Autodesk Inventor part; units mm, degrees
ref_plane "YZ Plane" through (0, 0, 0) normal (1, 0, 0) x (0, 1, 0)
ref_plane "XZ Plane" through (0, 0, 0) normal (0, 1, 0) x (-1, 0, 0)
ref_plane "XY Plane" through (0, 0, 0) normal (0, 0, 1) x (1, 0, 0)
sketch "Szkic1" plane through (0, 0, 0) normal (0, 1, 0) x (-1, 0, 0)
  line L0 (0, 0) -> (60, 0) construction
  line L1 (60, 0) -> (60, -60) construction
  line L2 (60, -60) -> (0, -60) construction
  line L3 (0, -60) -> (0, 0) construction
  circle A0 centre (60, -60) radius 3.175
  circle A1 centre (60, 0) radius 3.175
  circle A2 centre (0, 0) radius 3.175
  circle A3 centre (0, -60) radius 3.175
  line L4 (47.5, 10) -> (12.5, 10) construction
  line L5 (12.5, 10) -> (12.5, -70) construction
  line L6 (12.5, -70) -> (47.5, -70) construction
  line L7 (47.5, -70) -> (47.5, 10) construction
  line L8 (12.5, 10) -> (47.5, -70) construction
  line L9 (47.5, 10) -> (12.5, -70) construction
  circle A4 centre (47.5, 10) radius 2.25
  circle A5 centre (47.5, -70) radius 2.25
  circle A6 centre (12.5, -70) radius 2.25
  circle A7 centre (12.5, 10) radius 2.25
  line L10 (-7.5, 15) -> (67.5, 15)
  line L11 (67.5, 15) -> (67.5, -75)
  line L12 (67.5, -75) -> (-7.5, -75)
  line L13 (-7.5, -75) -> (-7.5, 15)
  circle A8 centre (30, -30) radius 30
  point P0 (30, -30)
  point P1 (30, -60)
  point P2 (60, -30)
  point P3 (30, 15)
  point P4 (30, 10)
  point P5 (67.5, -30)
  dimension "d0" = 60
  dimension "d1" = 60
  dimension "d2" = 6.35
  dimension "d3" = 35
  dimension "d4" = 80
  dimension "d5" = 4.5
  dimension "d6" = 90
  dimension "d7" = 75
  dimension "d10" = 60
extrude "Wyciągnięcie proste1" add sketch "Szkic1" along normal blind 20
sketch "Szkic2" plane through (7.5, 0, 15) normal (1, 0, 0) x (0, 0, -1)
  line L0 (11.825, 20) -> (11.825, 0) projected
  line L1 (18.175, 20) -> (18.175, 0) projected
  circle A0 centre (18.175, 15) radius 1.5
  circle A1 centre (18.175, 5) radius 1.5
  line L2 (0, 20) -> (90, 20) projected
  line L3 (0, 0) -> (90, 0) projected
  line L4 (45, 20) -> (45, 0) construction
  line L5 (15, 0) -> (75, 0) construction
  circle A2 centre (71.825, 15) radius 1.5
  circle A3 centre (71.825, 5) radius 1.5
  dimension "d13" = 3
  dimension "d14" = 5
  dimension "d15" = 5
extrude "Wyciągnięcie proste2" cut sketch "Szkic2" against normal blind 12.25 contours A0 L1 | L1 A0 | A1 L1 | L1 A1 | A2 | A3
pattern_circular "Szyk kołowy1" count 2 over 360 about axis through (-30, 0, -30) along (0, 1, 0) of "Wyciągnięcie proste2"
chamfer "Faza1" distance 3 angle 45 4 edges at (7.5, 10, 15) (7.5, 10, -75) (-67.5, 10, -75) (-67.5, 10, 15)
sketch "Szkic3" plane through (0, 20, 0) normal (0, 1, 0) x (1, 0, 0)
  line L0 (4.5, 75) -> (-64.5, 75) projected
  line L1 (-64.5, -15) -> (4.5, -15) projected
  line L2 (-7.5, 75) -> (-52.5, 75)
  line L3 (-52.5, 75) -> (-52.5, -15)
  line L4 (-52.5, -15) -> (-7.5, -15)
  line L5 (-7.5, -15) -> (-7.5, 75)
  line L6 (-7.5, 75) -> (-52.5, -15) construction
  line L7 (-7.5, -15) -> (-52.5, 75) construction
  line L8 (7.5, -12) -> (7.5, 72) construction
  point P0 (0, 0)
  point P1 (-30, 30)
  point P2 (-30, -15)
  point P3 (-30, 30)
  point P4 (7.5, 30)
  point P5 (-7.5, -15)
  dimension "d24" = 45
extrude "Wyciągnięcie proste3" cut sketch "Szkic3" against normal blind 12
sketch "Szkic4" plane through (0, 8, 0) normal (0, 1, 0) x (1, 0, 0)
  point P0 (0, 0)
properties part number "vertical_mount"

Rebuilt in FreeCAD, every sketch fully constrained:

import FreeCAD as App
import Part
import Sketcher

V = App.Vector


def edges_at(feature, points):
    """Names of the edges that pass closest to the given points."""
    edges = feature.Shape.Edges
    near = lambda p: min(range(len(edges)), key=lambda i: edges[i].distToShape(Part.Vertex(*p))[0])
    return sorted({f"Edge{near(p) + 1}" for p in points})

doc = App.newDocument("Part")
body = doc.addObject("PartDesign::Body", "Body")

# Sketch on XZ plane
sketch1 = body.newObject("Sketcher::SketchObject", "Sketch")
sketch1.AttachmentSupport = (doc.getObject("XZ_Plane"), [""])
sketch1.MapMode = "FlatFace"
sketch1.addGeometry([
    Part.LineSegment(V(-67.5, 15, 0), V(7.5, 15, 0)),  # 0
    Part.LineSegment(V(7.5, 15, 0), V(7.5, -75, 0)),  # 1
    Part.LineSegment(V(7.5, -75, 0), V(-67.5, -75, 0)),  # 2
    Part.LineSegment(V(-67.5, -75, 0), V(-67.5, 15, 0)),  # 3
    Part.Circle(V(0, -60, 0), V(0, 0, 1), 3.175),  # 4
    Part.Circle(V(-12.5, -70, 0), V(0, 0, 1), 2.25),  # 5
    Part.Circle(V(-47.5, -70, 0), V(0, 0, 1), 2.25),  # 6
    Part.Circle(V(-60, -60, 0), V(0, 0, 1), 3.175),  # 7
    Part.Circle(V(0, 0, 0), V(0, 0, 1), 3.175),  # 8
    Part.Circle(V(-12.5, 10, 0), V(0, 0, 1), 2.25),  # 9
    Part.Circle(V(-30, -30, 0), V(0, 0, 1), 30),  # 10
    Part.Circle(V(-47.5, 10, 0), V(0, 0, 1), 2.25),  # 11
    Part.Circle(V(-60, 0, 0), V(0, 0, 1), 3.175),  # 12
], False)
sketch1.addConstraint([
    Sketcher.Constraint("Coincident", 0, 2, 1, 1),
    Sketcher.Constraint("Coincident", 1, 2, 2, 1),
    Sketcher.Constraint("Coincident", 2, 2, 3, 1),
    Sketcher.Constraint("Coincident", 3, 2, 0, 1),
    Sketcher.Constraint("Horizontal", 0),
    Sketcher.Constraint("Vertical", 1),
    Sketcher.Constraint("Horizontal", 2),
    Sketcher.Constraint("Vertical", 3),
    Sketcher.Constraint("Coincident", 8, 3, -1, 1),
    Sketcher.Constraint("Equal", 5, 6),
    Sketcher.Constraint("Equal", 4, 7),
    Sketcher.Constraint("Equal", 7, 8),
    Sketcher.Constraint("Equal", 6, 9),
    Sketcher.Constraint("Equal", 9, 11),
    Sketcher.Constraint("Equal", 8, 12),
    Sketcher.Constraint("PointOnObject", 4, 3, -2),
    Sketcher.Constraint("PointOnObject", 12, 3, -1),
    Sketcher.Constraint("Horizontal", 5, 3, 6, 3),
    Sketcher.Constraint("Horizontal", 4, 3, 7, 3),
    Sketcher.Constraint("Horizontal", 9, 3, 11, 3),
    Sketcher.Constraint("Vertical", 5, 3, 9, 3),
    Sketcher.Constraint("Vertical", 6, 3, 11, 3),
    Sketcher.Constraint("Vertical", 7, 3, 12, 3),
    Sketcher.Constraint("Diameter", 10, 60.0),
    Sketcher.Constraint("Diameter", 5, 4.5),
    Sketcher.Constraint("Diameter", 4, 6.35),
    Sketcher.Constraint("DistanceX", 0, 1, 0, 2, 75.0),
    Sketcher.Constraint("DistanceY", 1, 2, 1, 1, 90.0),
    Sketcher.Constraint("DistanceY", 4, 3, -1, 1, 60.0),
    Sketcher.Constraint("DistanceX", 7, 3, -1, 1, 60.0),
    Sketcher.Constraint("DistanceY", 1, 2, -1, 1, 75.0),
    Sketcher.Constraint("DistanceX", 6, 3, 5, 3, 35.0),
    Sketcher.Constraint("DistanceY", 5, 3, 9, 3, 80.0),
    Sketcher.Constraint("DistanceY", 5, 3, -1, 1, 70.0),
    Sketcher.Constraint("DistanceX", 10, 3, -1, 1, 30.0),
    Sketcher.Constraint("DistanceY", 10, 3, -1, 1, 30.0),
    Sketcher.Constraint("DistanceX", 9, 3, 0, 2, 20.0),
    Sketcher.Constraint("DistanceX", 5, 3, -1, 1, 12.5),
])
pad1 = body.newObject("PartDesign::Pad", "Pad")
pad1.Profile = sketch1
pad1.Length = 20
pad1.Reversed = True

# Sketch on YZ plane
sketch2 = body.newObject("Sketcher::SketchObject", "Sketch001")
sketch2.AttachmentSupport = (doc.getObject("YZ_Plane"), [""])
sketch2.MapMode = "FlatFace"
sketch2.AttachmentOffset = App.Placement(V(0, 0, 7.5), App.Rotation())
sketch2.addGeometry([
    Part.Circle(V(15, -3.175, 0), V(0, 0, 1), 1.5),
    Part.Circle(V(5, -3.175, 0), V(0, 0, 1), 1.5),
    Part.Circle(V(15, -56.825, 0), V(0, 0, 1), 1.5),
    Part.Circle(V(5, -56.825, 0), V(0, 0, 1), 1.5),
], False)
sketch2.addConstraint([
    Sketcher.Constraint("Equal", 0, 1),
    Sketcher.Constraint("Equal", 1, 2),
    Sketcher.Constraint("Equal", 2, 3),
    Sketcher.Constraint("Horizontal", 0, 3, 1, 3),
    Sketcher.Constraint("Horizontal", 2, 3, 3, 3),
    Sketcher.Constraint("Vertical", 0, 3, 2, 3),
    Sketcher.Constraint("Vertical", 1, 3, 3, 3),
    Sketcher.Constraint("Diameter", 0, 3.0),
    Sketcher.Constraint("DistanceX", -1, 1, 1, 3, 5.0),
    Sketcher.Constraint("DistanceX", -1, 1, 0, 3, 15.0),
    Sketcher.Constraint("DistanceY", 2, 3, 0, 3, 53.65),
    Sketcher.Constraint("DistanceY", 0, 3, -1, 1, 3.175),
])
pocket1 = body.newObject("PartDesign::Pocket", "Pocket")
pocket1.Profile = sketch2
pocket1.Length = 12.25
doc.recompute()

datumline = body.newObject("PartDesign::Line", "DatumLine")
datumline.Placement = App.Placement(V(-30, 0, -30), App.Rotation(V(0, 0, 1), V(0, 1, 0)))
polarpattern = body.newObject("PartDesign::PolarPattern", "PolarPattern")
polarpattern.Originals = [pocket1]
polarpattern.Axis = (datumline, [""])
polarpattern.Angle = 360
polarpattern.Occurrences = 2
body.Tip = polarpattern
doc.recompute()

chamfer = body.newObject("PartDesign::Chamfer", "Chamfer")
chamfer.Base = (polarpattern, edges_at(polarpattern, [
    (7.5, 10, 15),
    (7.5, 10, -75),
    (-67.5, 10, -75),
    (-67.5, 10, 15),
]))
chamfer.Size = 3

# Sketch on XZ plane
sketch3 = body.newObject("Sketcher::SketchObject", "Sketch002")
sketch3.AttachmentSupport = (doc.getObject("XZ_Plane"), [""])
sketch3.MapMode = "FlatFace"
sketch3.AttachmentOffset = App.Placement(V(0, 0, -20), App.Rotation())
sketch3.addGeometry([
    Part.LineSegment(V(-7.5, 15, 0), V(-7.5, -75, 0)),
    Part.LineSegment(V(-7.5, -75, 0), V(-52.5, -75, 0)),
    Part.LineSegment(V(-52.5, -75, 0), V(-52.5, 15, 0)),
    Part.LineSegment(V(-52.5, 15, 0), V(-7.5, 15, 0)),
], False)
sketch3.addConstraint([
    Sketcher.Constraint("Coincident", 0, 2, 1, 1),
    Sketcher.Constraint("Coincident", 1, 2, 2, 1),
    Sketcher.Constraint("Coincident", 2, 2, 3, 1),
    Sketcher.Constraint("Coincident", 3, 2, 0, 1),
    Sketcher.Constraint("Vertical", 0),
    Sketcher.Constraint("Horizontal", 1),
    Sketcher.Constraint("Vertical", 2),
    Sketcher.Constraint("Horizontal", 3),
    Sketcher.Constraint("DistanceX", 1, 2, 1, 1, 45.0),
    Sketcher.Constraint("DistanceY", 0, 2, 0, 1, 90.0),
    Sketcher.Constraint("DistanceY", 0, 2, -1, 1, 75.0),
    Sketcher.Constraint("DistanceX", 0, 2, -1, 1, 7.5),
])
pocket2 = body.newObject("PartDesign::Pocket", "Pocket001")
pocket2.Profile = sketch3
pocket2.Length = 12
pocket2.Reversed = True

doc.recompute()
